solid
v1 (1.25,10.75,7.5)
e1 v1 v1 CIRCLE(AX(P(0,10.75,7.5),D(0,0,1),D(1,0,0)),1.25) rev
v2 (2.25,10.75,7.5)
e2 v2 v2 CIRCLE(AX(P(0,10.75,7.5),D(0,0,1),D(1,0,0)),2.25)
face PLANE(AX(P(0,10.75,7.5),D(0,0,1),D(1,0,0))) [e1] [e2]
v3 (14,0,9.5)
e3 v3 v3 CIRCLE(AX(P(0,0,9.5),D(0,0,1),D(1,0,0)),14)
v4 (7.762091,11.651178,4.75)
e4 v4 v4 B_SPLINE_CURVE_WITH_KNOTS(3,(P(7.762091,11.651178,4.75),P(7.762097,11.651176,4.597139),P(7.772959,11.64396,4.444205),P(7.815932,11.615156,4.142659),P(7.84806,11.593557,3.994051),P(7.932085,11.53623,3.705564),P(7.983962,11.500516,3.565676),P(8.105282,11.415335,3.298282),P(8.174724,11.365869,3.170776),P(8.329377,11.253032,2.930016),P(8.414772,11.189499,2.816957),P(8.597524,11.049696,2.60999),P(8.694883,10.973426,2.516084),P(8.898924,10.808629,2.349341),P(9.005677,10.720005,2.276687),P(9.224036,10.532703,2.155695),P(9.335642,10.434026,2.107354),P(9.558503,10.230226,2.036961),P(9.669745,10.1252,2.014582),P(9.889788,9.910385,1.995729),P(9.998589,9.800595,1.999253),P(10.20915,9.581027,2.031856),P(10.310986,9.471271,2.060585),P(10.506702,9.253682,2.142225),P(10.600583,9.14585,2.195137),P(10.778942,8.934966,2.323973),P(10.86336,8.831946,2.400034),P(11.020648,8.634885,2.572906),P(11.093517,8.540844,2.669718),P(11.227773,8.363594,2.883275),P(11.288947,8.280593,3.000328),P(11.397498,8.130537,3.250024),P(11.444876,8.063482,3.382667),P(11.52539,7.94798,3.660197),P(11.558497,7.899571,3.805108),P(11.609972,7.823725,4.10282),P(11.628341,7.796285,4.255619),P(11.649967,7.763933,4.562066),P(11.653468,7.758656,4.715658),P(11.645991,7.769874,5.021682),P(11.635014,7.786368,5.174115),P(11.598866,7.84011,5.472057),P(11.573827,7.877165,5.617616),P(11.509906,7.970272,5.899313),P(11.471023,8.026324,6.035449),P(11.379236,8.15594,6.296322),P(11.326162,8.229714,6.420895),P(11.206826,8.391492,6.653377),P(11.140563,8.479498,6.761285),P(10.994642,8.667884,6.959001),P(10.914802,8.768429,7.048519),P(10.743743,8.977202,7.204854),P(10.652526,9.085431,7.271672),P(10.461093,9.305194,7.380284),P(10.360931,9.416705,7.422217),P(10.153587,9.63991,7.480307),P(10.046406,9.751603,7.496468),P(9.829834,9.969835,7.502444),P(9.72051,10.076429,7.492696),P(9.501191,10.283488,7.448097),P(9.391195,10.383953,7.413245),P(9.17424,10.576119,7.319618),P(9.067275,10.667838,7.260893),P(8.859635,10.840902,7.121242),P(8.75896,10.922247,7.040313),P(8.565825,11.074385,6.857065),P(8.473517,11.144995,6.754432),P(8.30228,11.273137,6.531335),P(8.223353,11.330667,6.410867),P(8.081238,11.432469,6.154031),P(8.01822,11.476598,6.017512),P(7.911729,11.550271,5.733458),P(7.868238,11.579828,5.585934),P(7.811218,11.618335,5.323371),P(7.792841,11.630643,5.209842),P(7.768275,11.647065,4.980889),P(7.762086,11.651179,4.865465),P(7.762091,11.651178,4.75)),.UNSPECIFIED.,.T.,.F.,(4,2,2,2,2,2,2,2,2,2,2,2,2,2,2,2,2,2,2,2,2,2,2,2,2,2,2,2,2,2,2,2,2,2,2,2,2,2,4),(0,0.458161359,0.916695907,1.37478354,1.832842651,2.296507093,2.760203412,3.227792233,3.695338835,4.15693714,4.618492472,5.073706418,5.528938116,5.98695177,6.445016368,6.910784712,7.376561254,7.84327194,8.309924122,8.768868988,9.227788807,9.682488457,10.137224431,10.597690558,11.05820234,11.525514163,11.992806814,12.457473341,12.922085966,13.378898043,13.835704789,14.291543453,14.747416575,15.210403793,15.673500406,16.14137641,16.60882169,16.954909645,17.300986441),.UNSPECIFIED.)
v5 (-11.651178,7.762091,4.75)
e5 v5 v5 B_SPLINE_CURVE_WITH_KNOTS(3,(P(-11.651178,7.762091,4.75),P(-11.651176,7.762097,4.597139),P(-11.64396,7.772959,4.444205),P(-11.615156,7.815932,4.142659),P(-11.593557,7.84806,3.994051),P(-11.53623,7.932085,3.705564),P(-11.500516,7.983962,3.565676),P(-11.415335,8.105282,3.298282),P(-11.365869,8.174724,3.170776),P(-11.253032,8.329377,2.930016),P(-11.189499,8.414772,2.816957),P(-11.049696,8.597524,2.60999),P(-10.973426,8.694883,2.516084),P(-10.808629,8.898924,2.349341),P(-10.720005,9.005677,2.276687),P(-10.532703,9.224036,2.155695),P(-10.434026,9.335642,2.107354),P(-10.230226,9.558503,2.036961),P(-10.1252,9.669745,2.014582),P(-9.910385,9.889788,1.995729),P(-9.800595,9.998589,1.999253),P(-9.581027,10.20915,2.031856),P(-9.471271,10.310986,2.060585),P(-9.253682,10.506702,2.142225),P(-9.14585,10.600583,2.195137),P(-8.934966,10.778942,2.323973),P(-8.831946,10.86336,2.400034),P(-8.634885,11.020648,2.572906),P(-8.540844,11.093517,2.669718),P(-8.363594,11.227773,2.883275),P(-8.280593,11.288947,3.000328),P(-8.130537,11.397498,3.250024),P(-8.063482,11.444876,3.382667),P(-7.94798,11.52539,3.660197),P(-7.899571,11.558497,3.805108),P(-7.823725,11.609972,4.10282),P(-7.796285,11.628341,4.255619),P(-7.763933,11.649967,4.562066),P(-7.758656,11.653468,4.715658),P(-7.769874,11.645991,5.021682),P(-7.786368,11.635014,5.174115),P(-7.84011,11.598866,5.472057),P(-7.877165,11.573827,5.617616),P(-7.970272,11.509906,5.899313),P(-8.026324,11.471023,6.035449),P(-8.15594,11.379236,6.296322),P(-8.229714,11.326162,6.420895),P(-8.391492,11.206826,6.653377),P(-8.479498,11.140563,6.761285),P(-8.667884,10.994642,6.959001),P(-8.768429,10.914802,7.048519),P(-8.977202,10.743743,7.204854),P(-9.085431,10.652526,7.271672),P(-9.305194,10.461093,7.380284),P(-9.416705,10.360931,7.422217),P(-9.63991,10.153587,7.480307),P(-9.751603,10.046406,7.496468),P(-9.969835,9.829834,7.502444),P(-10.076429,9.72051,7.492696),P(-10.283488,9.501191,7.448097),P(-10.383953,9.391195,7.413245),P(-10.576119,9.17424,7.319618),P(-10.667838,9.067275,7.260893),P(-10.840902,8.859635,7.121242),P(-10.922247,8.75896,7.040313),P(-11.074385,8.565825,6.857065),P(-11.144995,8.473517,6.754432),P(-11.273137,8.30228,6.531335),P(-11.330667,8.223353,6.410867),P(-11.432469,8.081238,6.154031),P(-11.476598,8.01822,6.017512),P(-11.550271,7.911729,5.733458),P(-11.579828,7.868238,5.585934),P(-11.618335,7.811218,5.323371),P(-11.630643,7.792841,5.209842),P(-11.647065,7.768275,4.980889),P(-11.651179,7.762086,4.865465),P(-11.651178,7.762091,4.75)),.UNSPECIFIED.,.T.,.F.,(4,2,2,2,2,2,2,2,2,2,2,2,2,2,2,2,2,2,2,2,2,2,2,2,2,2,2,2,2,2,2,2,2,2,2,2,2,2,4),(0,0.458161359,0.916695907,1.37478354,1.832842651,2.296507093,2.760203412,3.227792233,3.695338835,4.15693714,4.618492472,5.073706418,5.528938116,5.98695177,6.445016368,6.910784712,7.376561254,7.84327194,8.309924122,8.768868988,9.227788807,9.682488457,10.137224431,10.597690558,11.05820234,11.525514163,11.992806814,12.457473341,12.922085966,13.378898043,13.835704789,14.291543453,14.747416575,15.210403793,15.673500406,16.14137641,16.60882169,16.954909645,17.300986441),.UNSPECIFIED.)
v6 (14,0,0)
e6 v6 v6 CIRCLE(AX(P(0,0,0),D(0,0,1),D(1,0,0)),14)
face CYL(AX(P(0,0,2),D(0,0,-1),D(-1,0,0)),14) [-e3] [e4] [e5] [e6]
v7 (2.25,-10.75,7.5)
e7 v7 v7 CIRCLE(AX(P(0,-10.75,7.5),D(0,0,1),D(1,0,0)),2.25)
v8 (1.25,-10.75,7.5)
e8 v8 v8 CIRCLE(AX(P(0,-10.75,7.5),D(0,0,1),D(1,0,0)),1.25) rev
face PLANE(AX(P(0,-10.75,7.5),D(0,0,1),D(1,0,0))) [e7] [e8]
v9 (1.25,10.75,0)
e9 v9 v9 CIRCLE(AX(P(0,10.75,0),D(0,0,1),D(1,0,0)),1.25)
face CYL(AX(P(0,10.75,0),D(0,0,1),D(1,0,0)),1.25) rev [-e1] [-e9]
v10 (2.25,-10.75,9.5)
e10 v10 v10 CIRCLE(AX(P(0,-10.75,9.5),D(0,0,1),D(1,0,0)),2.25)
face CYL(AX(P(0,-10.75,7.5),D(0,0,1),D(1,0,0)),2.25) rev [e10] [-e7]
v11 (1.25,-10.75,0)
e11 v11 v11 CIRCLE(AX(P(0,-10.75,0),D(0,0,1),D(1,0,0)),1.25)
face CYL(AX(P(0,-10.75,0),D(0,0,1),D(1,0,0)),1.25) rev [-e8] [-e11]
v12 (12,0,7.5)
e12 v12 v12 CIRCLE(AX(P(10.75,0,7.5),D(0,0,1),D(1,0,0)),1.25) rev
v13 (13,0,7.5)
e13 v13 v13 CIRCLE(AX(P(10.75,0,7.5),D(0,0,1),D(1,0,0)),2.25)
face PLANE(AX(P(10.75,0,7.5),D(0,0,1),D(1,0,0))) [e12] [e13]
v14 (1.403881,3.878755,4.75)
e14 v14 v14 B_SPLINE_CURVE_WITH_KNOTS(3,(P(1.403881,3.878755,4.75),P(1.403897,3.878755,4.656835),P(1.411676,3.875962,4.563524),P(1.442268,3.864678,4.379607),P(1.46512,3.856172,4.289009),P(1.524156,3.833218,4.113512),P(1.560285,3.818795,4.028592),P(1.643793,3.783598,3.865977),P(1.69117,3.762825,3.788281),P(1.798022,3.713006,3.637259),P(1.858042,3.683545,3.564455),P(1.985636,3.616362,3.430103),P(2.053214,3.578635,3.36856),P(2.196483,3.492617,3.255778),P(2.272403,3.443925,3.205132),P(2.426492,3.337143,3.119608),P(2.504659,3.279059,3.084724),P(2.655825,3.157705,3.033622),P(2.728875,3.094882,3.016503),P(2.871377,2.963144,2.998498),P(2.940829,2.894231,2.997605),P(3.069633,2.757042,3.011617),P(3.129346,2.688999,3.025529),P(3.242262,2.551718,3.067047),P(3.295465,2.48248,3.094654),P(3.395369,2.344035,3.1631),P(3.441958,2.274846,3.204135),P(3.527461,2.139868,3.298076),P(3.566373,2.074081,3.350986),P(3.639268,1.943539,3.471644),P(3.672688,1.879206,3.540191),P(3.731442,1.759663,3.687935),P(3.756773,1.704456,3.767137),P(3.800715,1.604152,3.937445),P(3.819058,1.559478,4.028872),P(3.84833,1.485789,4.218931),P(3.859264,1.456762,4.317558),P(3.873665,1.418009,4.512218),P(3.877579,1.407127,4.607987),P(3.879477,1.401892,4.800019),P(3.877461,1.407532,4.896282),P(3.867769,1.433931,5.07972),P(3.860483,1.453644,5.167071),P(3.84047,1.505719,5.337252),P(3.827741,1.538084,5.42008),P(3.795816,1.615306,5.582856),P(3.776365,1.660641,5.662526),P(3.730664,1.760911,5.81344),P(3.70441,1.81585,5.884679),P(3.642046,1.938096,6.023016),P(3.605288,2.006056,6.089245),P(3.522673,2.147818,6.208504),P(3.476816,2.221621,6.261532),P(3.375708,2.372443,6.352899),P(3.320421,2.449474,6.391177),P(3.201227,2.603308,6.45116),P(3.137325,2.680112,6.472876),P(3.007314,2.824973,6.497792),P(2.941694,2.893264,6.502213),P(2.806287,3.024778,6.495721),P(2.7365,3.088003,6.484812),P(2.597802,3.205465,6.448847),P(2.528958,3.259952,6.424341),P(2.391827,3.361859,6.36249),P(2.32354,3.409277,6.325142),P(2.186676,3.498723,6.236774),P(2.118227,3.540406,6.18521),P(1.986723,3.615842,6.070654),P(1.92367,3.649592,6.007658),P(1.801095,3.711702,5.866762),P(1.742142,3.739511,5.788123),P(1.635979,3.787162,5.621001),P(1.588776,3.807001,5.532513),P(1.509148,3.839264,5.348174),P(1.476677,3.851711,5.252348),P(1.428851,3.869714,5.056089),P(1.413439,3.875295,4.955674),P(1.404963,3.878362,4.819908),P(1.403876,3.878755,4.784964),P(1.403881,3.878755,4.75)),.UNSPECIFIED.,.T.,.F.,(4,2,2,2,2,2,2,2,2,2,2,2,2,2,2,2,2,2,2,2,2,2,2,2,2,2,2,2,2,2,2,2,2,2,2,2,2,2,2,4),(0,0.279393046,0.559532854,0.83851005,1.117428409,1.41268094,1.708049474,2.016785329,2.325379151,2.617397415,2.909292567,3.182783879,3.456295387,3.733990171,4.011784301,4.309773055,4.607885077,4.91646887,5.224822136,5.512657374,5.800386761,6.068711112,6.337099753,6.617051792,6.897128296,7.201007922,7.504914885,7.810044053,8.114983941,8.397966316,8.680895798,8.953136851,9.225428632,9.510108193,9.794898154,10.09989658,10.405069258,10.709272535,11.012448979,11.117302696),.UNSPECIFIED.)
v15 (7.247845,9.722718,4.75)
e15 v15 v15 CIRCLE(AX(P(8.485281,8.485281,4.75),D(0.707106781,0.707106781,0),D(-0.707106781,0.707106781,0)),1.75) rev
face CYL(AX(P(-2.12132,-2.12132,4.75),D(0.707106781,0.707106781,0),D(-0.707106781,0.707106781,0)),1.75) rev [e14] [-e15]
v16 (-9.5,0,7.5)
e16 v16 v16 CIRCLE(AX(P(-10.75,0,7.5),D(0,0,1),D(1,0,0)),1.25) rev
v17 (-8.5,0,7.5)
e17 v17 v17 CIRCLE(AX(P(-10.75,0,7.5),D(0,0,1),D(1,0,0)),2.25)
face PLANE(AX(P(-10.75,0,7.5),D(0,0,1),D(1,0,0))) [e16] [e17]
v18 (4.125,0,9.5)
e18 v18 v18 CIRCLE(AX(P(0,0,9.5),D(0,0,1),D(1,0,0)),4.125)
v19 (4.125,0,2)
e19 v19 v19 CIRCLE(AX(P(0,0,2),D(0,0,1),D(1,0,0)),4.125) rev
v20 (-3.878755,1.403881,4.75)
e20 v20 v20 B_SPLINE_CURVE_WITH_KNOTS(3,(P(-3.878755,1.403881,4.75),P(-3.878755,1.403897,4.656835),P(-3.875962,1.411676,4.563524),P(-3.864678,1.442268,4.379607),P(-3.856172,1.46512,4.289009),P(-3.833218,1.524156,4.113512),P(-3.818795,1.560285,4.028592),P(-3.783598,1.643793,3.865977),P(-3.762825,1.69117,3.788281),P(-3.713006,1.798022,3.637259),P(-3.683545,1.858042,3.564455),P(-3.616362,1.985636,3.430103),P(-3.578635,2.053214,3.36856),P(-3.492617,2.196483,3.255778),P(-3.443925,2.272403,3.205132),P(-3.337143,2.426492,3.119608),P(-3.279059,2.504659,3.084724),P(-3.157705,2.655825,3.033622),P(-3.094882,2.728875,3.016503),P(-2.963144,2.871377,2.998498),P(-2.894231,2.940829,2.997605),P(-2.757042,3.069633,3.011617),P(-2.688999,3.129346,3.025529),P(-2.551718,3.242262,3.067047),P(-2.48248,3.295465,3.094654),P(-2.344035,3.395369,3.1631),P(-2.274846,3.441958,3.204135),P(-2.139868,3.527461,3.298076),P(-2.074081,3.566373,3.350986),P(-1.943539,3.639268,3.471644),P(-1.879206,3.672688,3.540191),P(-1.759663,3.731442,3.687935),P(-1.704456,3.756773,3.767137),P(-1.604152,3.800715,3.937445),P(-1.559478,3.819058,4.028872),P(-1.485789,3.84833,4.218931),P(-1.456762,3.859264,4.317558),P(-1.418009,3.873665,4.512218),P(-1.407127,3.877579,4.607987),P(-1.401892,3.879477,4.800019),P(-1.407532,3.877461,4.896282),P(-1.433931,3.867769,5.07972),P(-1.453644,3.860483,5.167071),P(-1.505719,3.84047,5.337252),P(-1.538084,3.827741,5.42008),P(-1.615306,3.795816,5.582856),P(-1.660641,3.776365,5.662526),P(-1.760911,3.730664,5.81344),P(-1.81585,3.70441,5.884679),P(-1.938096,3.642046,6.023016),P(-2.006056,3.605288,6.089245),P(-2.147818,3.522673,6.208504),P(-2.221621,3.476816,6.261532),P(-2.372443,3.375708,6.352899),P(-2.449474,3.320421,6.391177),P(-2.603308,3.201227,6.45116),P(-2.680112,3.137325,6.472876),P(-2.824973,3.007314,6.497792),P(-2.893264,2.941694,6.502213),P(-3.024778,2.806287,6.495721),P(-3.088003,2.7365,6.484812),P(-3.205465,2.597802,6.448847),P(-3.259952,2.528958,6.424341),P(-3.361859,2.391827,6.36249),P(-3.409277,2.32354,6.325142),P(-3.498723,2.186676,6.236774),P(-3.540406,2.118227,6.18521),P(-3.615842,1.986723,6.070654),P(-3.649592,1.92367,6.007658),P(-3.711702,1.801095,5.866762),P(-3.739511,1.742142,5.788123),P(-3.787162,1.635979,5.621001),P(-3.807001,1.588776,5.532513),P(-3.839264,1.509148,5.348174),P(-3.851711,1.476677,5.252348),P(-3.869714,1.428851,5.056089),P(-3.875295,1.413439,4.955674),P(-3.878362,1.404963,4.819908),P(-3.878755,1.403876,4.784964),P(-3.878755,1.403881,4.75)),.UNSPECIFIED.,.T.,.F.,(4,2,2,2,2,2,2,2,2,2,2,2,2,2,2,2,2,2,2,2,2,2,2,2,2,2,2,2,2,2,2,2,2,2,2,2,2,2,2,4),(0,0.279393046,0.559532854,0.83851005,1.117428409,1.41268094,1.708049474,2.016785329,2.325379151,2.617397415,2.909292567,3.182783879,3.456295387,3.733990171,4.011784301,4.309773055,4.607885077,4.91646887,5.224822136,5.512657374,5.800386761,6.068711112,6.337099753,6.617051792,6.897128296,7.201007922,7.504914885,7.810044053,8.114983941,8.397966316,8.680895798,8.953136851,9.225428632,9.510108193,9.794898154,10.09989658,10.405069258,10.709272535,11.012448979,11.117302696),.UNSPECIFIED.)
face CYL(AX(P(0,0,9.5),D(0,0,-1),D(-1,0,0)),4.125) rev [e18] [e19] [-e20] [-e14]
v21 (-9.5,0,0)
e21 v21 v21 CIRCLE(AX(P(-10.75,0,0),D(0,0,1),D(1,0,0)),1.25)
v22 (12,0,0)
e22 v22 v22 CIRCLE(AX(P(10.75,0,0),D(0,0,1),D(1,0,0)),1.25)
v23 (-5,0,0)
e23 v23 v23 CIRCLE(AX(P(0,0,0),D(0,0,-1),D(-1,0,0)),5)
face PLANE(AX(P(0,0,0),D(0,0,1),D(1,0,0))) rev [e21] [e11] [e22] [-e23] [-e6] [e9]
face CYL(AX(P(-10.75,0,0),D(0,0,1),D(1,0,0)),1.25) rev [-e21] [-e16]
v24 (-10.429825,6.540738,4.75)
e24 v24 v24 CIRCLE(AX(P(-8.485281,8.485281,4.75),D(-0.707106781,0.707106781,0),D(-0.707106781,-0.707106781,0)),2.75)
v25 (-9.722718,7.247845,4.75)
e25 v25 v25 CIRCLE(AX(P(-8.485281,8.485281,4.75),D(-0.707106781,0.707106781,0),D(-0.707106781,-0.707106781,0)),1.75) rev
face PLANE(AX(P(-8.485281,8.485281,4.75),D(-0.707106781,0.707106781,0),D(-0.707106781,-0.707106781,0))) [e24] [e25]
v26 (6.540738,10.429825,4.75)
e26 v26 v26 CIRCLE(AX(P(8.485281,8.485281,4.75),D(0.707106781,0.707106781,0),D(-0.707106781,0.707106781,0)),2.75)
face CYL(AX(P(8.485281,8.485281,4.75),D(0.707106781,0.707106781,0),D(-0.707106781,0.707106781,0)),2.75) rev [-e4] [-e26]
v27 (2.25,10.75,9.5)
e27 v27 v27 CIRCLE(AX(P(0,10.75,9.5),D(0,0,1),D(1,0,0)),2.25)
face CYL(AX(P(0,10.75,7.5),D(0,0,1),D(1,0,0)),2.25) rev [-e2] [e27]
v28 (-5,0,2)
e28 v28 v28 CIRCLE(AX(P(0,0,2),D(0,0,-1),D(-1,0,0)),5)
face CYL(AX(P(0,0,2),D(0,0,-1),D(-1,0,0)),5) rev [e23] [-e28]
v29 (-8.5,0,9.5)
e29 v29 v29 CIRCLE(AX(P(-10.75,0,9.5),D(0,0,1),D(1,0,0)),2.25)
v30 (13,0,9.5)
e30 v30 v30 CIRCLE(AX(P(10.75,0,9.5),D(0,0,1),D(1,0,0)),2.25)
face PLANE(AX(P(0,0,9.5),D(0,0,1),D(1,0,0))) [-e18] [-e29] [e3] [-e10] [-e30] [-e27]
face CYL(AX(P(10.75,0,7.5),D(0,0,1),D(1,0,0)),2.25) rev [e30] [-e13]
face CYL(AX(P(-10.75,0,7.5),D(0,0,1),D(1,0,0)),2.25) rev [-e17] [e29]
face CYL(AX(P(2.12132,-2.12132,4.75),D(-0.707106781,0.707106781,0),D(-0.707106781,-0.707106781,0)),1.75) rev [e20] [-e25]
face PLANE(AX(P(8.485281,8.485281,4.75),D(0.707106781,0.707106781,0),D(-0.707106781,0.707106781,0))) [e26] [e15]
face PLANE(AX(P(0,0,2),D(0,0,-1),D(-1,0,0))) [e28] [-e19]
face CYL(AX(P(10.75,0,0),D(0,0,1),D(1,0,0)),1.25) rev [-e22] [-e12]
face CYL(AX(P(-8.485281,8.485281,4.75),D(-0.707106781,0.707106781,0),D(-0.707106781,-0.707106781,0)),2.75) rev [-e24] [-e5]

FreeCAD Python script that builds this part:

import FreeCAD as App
import Part
import Sketcher

doc = App.newDocument("Part")
body = doc.addObject("PartDesign::Body", "Body")

# Sketch on XY plane
sketch1 = doc.addObject("Sketcher::SketchObject", "Sketch")
body.addObject(sketch1)
sketch1.AttachmentSupport = (doc.XY_Plane, [""])
sketch1.MapMode = "FlatFace"
sketch1.addGeometry(Part.Circle(App.Vector(0, 0, 0), App.Vector(0, 0, 1), 14), False)
sketch1.addConstraint([
    Sketcher.Constraint("Coincident", 0, 3, -1, 1),
    Sketcher.Constraint("Diameter", 0, 28.0),
])
pad1 = doc.addObject("PartDesign::Pad", "Pad")
body.addObject(pad1)
pad1.Profile = sketch1
pad1.Length = 2

# Sketch on XY plane
sketch2 = doc.addObject("Sketcher::SketchObject", "Sketch001")
body.addObject(sketch2)
sketch2.AttachmentSupport = (doc.XY_Plane, [""])
sketch2.MapMode = "FlatFace"
sketch2.AttachmentOffset = App.Placement(App.Vector(0, 0, 2), App.Rotation())
sketch2.addGeometry([
    Part.Circle(App.Vector(0, 0, 0), App.Vector(0, 0, 1), 14),
    Part.Circle(App.Vector(0, 0, 0), App.Vector(0, 0, 1), 4.1),
], False)
sketch2.addConstraint([
    Sketcher.Constraint("Coincident", 0, 3, -1, 1),
    Sketcher.Constraint("Coincident", 1, 3, -1, 1),
    Sketcher.Constraint("Diameter", 0, 28.0),
    Sketcher.Constraint("Diameter", 1, 8.25),
])
pad2 = doc.addObject("PartDesign::Pad", "Pad001")
body.addObject(pad2)
pad2.Profile = sketch2
pad2.Length = 7.5

# Sketch on XY plane
sketch3 = doc.addObject("Sketcher::SketchObject", "Sketch002")
body.addObject(sketch3)
sketch3.AttachmentSupport = (doc.XY_Plane, [""])
sketch3.MapMode = "FlatFace"
sketch3.addGeometry(Part.Circle(App.Vector(0, 0, 0), App.Vector(0, 0, 1), 5), False)
sketch3.addConstraint([
    Sketcher.Constraint("Coincident", 0, 3, -1, 1),
    Sketcher.Constraint("Diameter", 0, 10.0),
])
pocket1 = doc.addObject("PartDesign::Pocket", "Pocket")
body.addObject(pocket1)
pocket1.Profile = sketch3
pocket1.Length = 2
pocket1.Reversed = True

# Sketch on XY plane
sketch4 = doc.addObject("Sketcher::SketchObject", "Sketch003")
body.addObject(sketch4)
sketch4.AttachmentSupport = (doc.XY_Plane, [""])
sketch4.MapMode = "FlatFace"
sketch4.AttachmentOffset = App.Placement(App.Vector(0, 0, 9.5), App.Rotation())
sketch4.addGeometry([
    Part.Circle(App.Vector(0, 10.8, 0), App.Vector(0, 0, 1), 1.2),
    Part.Circle(App.Vector(10.8, 0, 0), App.Vector(0, 0, 1), 1.2),
    Part.Circle(App.Vector(0, -10.8, 0), App.Vector(0, 0, 1), 1.2),
    Part.Circle(App.Vector(-10.8, 0, 0), App.Vector(0, 0, 1), 1.2),
], False)
sketch4.addConstraint([
    Sketcher.Constraint("Equal", 0, 1),
    Sketcher.Constraint("Equal", 1, 2),
    Sketcher.Constraint("Equal", 2, 3),
    Sketcher.Constraint("Symmetric", 0, 3, 2, 3, -1, 1),
    Sketcher.Constraint("Symmetric", 1, 3, 3, 3, -1, 1),
    Sketcher.Constraint("PointOnObject", 0, 3, -2),
    Sketcher.Constraint("PointOnObject", 1, 3, -1),
    Sketcher.Constraint("Diameter", 0, 2.5),
    Sketcher.Constraint("DistanceY", 2, 3, 0, 3, 21.5),
    Sketcher.Constraint("DistanceX", 3, 3, 1, 3, 21.5),
])
pocket2 = doc.addObject("PartDesign::Pocket", "Pocket001")
body.addObject(pocket2)
pocket2.Profile = sketch4
pocket2.Type = "ThroughAll"

# Sketch on an angled plane
sketch5 = doc.addObject("Sketcher::SketchObject", "Sketch004")
body.addObject(sketch5)
sketch5.Placement = App.Placement(App.Vector(9.899495, 9.899495, 0), App.Rotation(App.Vector(0.707106781, -0.707106781, 0), App.Vector(0, 0, -0.999999999), App.Vector(0.707106781, 0.707106781, 0), "ZXY"))
sketch5.addGeometry(Part.Circle(App.Vector(0, -4.7, 0), App.Vector(0, 0, 1), 1.8), False)
sketch5.addConstraint([
    Sketcher.Constraint("PointOnObject", 0, 3, -2),
    Sketcher.Constraint("Diameter", 0, 3.5),
    Sketcher.Constraint("DistanceY", 0, 3, -1, 1, 4.75),
])
pocket3 = doc.addObject("PartDesign::Pocket", "Pocket002")
body.addObject(pocket3)
pocket3.Profile = sketch5
pocket3.Length = 17

# Sketch on an angled plane
sketch6 = doc.addObject("Sketcher::SketchObject", "Sketch005")
body.addObject(sketch6)
sketch6.Placement = App.Placement(App.Vector(-9.899495, 9.899495, 0), App.Rotation(App.Vector(0, 0, 1), App.Vector(0.707106781, 0.707106781, 0), App.Vector(-0.707106781, 0.707106781, 0), "ZXY"))
sketch6.addGeometry(Part.Circle(App.Vector(4.8, 0, 0), App.Vector(0, 0, 1), 1.8), False)
sketch6.addConstraint([
    Sketcher.Constraint("PointOnObject", 0, 3, -1),
    Sketcher.Constraint("Diameter", 0, 3.5),
    Sketcher.Constraint("DistanceX", -1, 1, 0, 3, 4.75),
])
pocket4 = doc.addObject("PartDesign::Pocket", "Pocket003")
body.addObject(pocket4)
pocket4.Profile = sketch6
pocket4.Length = 17

# Sketch on XY plane
sketch7 = doc.addObject("Sketcher::SketchObject", "Sketch006")
body.addObject(sketch7)
sketch7.AttachmentSupport = (doc.XY_Plane, [""])
sketch7.MapMode = "FlatFace"
sketch7.AttachmentOffset = App.Placement(App.Vector(0, 0, 9.5), App.Rotation())
sketch7.addGeometry([
    Part.Circle(App.Vector(0, 10.8, 0), App.Vector(0, 0, 1), 2.2),
    Part.Circle(App.Vector(10.8, 0, 0), App.Vector(0, 0, 1), 2.2),
    Part.Circle(App.Vector(0, -10.8, 0), App.Vector(0, 0, 1), 2.2),
    Part.Circle(App.Vector(-10.8, 0, 0), App.Vector(0, 0, 1), 2.2),
], False)
sketch7.addConstraint([
    Sketcher.Constraint("Equal", 0, 1),
    Sketcher.Constraint("Equal", 1, 2),
    Sketcher.Constraint("Equal", 2, 3),
    Sketcher.Constraint("Symmetric", 0, 3, 2, 3, -1, 1),
    Sketcher.Constraint("Symmetric", 1, 3, 3, 3, -1, 1),
    Sketcher.Constraint("PointOnObject", 0, 3, -2),
    Sketcher.Constraint("PointOnObject", 1, 3, -1),
    Sketcher.Constraint("Diameter", 0, 4.5),
    Sketcher.Constraint("DistanceY", 2, 3, 0, 3, 21.5),
    Sketcher.Constraint("DistanceX", 3, 3, 1, 3, 21.5),
])
pocket5 = doc.addObject("PartDesign::Pocket", "Pocket004")
body.addObject(pocket5)
pocket5.Profile = sketch7
pocket5.Length = 2

# Sketch on an angled plane
sketch8 = doc.addObject("Sketcher::SketchObject", "Sketch007")
body.addObject(sketch8)
sketch8.Placement = App.Placement(App.Vector(9.899495, 9.899495, 0), App.Rotation(App.Vector(0.707106781, -0.707106781, 0), App.Vector(0, 0, -0.999999999), App.Vector(0.707106781, 0.707106781, 0), "ZXY"))
sketch8.addGeometry(Part.Circle(App.Vector(0, -4.7, 0), App.Vector(0, 0, 1), 2.8), False)
sketch8.addConstraint([
    Sketcher.Constraint("PointOnObject", 0, 3, -2),
    Sketcher.Constraint("Diameter", 0, 5.5),
    Sketcher.Constraint("DistanceY", 0, 3, -1, 1, 4.75),
])
pocket6 = doc.addObject("PartDesign::Pocket", "Pocket005")
body.addObject(pocket6)
pocket6.Profile = sketch8
pocket6.Length = 2

# Sketch on an angled plane
sketch9 = doc.addObject("Sketcher::SketchObject", "Sketch008")
body.addObject(sketch9)
sketch9.Placement = App.Placement(App.Vector(-9.899495, 9.899495, 0), App.Rotation(App.Vector(0, 0, 1), App.Vector(0.707106781, 0.707106781, 0), App.Vector(-0.707106781, 0.707106781, 0), "ZXY"))
sketch9.addGeometry(Part.Circle(App.Vector(4.8, 0, 0), App.Vector(0, 0, 1), 2.8), False)
sketch9.addConstraint([
    Sketcher.Constraint("PointOnObject", 0, 3, -1),
    Sketcher.Constraint("Diameter", 0, 5.5),
    Sketcher.Constraint("DistanceX", -1, 1, 0, 3, 4.75),
])
pocket7 = doc.addObject("PartDesign::Pocket", "Pocket006")
body.addObject(pocket7)
pocket7.Profile = sketch9
pocket7.Length = 2

doc.recompute()
